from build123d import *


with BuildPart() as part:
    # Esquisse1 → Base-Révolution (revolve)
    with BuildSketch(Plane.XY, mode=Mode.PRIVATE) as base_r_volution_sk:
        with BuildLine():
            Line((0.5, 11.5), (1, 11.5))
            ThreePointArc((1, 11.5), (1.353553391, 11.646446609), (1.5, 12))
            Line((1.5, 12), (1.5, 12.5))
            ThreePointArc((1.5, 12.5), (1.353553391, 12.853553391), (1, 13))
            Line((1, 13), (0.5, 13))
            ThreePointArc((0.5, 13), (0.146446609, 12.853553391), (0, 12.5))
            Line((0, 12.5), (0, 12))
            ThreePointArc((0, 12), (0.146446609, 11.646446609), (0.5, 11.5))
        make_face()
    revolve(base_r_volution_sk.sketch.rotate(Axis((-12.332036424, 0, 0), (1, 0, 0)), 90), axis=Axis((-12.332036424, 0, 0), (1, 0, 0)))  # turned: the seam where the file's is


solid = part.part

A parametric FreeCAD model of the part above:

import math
import FreeCAD as App
import Part
import Sketcher
from FreeCAD import Vector
Q = App.Units.Quantity

doc = App.newDocument("Part")
body = doc.addObject("PartDesign::Body", "Body")

# Sketch on XY plane
sketch1 = body.newObject("Sketcher::SketchObject", "Sketch")
sketch1.AttachmentSupport = (doc.getObject("XY_Plane"), [""])
sketch1.MapMode = "FlatFace"
sketch1.addGeometry(Part.LineSegment(Vector(0.5, 11.5, 0), Vector(1, 11.5, 0)), False)
sketch1.addGeometry(Part.ArcOfCircle(Part.Circle(Vector(1, 12, 0), Vector(0, 0, 1), 0.5), math.radians(-90), math.radians(0)), False)
sketch1.addGeometry(Part.LineSegment(Vector(1.5, 12, 0), Vector(1.5, 12.5, 0)), False)
sketch1.addGeometry(Part.ArcOfCircle(Part.Circle(Vector(1, 12.5, 0), Vector(0, 0, 1), 0.5), math.radians(0), math.radians(90)), False)
sketch1.addGeometry(Part.LineSegment(Vector(1, 13, 0), Vector(0.5, 13, 0)), False)
sketch1.addGeometry(Part.ArcOfCircle(Part.Circle(Vector(0.5, 12.5, 0), Vector(0, 0, 1), 0.5), math.radians(90), math.radians(180)), False)
sketch1.addGeometry(Part.LineSegment(Vector(0, 12.5, 0), Vector(0, 12, 0)), False)
sketch1.addGeometry(Part.ArcOfCircle(Part.Circle(Vector(0.5, 12, 0), Vector(0, 0, 1), 0.5), math.radians(180), math.radians(270)), False)
sketch1.addConstraint(Sketcher.Constraint("Tangent", 0, 2, 1, 1))
sketch1.addConstraint(Sketcher.Constraint("Tangent", 1, 2, 2, 1))
sketch1.addConstraint(Sketcher.Constraint("Tangent", 2, 2, 3, 1))
sketch1.addConstraint(Sketcher.Constraint("Tangent", 3, 2, 4, 1))
sketch1.addConstraint(Sketcher.Constraint("Tangent", 4, 2, 5, 1))
sketch1.addConstraint(Sketcher.Constraint("Tangent", 5, 2, 6, 1))
sketch1.addConstraint(Sketcher.Constraint("Tangent", 6, 2, 7, 1))
sketch1.addConstraint(Sketcher.Constraint("Tangent", 7, 2, 0, 1))
sketch1.addConstraint(Sketcher.Constraint("Horizontal", 0))
sketch1.addConstraint(Sketcher.Constraint("Vertical", 2))
sketch1.addConstraint(Sketcher.Constraint("Horizontal", 4))
sketch1.addConstraint(Sketcher.Constraint("Vertical", 6))
sketch1.addConstraint(Sketcher.Constraint("Equal", 1, 3))
sketch1.addConstraint(Sketcher.Constraint("Equal", 3, 5))
sketch1.addConstraint(Sketcher.Constraint("Equal", 5, 7))
sketch1.addConstraint(Sketcher.Constraint("PointOnObject", 5, 2, -2))
sketch1.addConstraint(Sketcher.Constraint("Equal", 4, 2))
sketch1.addConstraint(Sketcher.Constraint("Radius", 1, Q("0.5 mm")))
sketch1.addConstraint(Sketcher.Constraint("DistanceX", 0, 1, 0, 2, Q("0.5 mm")))
sketch1.addConstraint(Sketcher.Constraint("DistanceY", -1, 1, 1, 3, Q("12 mm")))
revolution = body.newObject("PartDesign::Revolution", "Revolution")
revolution.Profile = sketch1
revolution.ReferenceAxis = (sketch1, ["H_Axis"])
revolution.Angle = 360

doc.recompute()
